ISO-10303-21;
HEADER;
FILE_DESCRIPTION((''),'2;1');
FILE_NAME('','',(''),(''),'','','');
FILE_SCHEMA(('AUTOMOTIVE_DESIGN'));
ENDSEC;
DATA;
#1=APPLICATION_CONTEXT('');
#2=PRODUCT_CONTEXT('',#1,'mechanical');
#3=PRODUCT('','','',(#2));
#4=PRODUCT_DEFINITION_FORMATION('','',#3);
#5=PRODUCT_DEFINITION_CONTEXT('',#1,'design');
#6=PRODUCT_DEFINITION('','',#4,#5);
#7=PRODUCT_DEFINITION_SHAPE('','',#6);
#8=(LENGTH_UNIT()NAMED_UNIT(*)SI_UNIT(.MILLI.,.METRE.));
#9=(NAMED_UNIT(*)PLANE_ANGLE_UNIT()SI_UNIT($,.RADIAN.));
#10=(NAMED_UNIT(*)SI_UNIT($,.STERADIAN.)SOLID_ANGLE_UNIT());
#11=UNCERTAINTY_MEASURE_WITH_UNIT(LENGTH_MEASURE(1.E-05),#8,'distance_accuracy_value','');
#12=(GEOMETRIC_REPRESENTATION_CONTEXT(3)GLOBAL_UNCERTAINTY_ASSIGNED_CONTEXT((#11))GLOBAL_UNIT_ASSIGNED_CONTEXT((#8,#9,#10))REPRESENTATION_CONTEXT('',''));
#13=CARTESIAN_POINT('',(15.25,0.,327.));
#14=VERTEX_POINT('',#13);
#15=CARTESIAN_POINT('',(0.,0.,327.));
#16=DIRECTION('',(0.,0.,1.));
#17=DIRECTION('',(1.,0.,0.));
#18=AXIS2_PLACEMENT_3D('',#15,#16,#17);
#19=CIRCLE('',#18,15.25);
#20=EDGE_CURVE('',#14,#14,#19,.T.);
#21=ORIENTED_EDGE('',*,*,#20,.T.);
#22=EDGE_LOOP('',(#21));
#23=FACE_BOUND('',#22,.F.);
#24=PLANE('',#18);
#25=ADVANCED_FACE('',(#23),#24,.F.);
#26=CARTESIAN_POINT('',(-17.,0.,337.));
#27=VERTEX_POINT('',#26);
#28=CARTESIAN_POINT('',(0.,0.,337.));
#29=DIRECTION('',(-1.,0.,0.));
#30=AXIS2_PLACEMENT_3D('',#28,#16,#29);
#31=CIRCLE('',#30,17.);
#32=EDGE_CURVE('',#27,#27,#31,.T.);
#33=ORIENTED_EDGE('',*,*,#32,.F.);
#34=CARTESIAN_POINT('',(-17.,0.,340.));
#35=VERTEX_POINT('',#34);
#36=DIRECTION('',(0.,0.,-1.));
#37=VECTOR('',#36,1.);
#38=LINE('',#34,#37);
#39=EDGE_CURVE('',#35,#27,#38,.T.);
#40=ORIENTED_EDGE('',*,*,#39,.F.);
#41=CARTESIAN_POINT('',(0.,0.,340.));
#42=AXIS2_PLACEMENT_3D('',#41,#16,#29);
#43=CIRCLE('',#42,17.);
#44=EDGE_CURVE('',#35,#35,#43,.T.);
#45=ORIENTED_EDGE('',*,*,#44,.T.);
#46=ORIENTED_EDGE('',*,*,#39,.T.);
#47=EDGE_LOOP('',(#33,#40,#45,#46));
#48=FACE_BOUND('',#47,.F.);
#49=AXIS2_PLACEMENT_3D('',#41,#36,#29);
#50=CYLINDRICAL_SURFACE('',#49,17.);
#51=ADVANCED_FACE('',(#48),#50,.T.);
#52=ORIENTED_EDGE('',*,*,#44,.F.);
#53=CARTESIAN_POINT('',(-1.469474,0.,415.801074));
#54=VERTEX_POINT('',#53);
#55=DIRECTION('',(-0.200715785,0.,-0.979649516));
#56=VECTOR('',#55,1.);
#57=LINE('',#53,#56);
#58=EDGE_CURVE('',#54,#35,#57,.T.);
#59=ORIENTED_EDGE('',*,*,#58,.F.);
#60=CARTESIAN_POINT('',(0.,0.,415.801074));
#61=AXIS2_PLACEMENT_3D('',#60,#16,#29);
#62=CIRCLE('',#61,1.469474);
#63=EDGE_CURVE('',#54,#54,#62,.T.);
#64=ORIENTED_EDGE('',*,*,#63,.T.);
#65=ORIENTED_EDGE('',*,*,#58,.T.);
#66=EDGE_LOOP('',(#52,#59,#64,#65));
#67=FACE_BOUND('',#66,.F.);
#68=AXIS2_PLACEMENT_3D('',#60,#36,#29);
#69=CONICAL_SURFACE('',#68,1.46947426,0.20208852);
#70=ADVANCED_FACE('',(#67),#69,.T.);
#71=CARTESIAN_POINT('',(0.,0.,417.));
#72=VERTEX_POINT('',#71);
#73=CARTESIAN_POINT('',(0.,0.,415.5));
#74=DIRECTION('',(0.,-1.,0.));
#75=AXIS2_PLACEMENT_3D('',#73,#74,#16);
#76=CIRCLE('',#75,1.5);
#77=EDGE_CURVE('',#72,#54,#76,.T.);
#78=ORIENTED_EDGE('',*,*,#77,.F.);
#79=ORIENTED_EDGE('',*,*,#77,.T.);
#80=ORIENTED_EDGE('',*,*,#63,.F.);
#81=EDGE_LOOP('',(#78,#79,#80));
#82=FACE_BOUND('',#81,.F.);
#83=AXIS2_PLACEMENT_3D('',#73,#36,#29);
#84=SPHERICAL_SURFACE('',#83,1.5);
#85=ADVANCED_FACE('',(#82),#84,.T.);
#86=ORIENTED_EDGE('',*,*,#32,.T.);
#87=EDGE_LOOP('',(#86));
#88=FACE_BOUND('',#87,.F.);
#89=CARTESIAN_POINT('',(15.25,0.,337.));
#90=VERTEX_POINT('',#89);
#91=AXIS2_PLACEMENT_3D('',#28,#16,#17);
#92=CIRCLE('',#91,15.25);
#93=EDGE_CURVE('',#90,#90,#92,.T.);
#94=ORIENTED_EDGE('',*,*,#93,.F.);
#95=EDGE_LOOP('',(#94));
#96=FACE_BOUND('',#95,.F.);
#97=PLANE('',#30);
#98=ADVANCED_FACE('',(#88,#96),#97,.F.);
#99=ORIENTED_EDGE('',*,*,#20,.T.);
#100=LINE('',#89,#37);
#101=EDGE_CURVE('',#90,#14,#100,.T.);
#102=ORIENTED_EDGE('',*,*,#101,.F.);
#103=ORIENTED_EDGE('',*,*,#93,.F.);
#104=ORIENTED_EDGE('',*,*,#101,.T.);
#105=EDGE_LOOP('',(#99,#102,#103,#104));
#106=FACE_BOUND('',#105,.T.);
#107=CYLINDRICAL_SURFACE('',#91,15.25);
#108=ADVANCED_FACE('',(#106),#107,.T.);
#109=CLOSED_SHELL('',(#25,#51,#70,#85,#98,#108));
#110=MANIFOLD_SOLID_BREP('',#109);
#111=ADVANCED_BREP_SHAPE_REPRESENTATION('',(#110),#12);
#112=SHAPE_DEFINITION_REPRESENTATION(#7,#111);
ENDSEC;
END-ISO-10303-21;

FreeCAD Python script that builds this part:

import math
import FreeCAD as App
import Part
import Sketcher
from FreeCAD import Vector

doc = App.newDocument("Part")
body = doc.addObject("PartDesign::Body", "Body")

# Sketch on XY plane
sketch1 = doc.addObject("Sketcher::SketchObject", "Sketch")
body.addObject(sketch1)
sketch1.AttachmentSupport = (doc.XY_Plane, [""])
sketch1.MapMode = "FlatFace"
sketch1.AttachmentOffset = App.Placement(Vector(0, 0, 337), App.Rotation())
sketch1.addGeometry(Part.Circle(Vector(0, 0, 0), Vector(0, 0, 1), 15), False)
sketch1.addConstraint([
    Sketcher.Constraint("Coincident", 0, 3, -1, 1),
    Sketcher.Constraint("Diameter", 0, 30.5),
])
pad1 = doc.addObject("PartDesign::Pad", "Pad")
body.addObject(pad1)
pad1.Profile = sketch1
pad1.Length = 10
pad1.Reversed = True

# Sketch on XZ plane
sketch2 = doc.addObject("Sketcher::SketchObject", "Sketch001")
body.addObject(sketch2)
sketch2.AttachmentSupport = (doc.XZ_Plane, [""])
sketch2.MapMode = "FlatFace"
sketch2.addGeometry([
    Part.ArcOfCircle(Part.Circle(Vector(0, 415.5, 0), Vector(0, 0, 1), 1.5), math.radians(90), math.radians(168)),  # 0
    Part.LineSegment(Vector(-1.5, 415.8, 0), Vector(-17, 340, 0)),  # 1
    Part.LineSegment(Vector(-17, 340, 0), Vector(-17, 337, 0)),  # 2
    Part.LineSegment(Vector(-17, 337, 0), Vector(0, 337, 0)),  # 3
    Part.LineSegment(Vector(0, 337, 0), Vector(0, 417, 0)),  # 4
], False)
sketch2.addConstraint([
    Sketcher.Constraint("Tangent", 0, 2, 1, 1),
    Sketcher.Constraint("Coincident", 1, 2, 2, 1),
    Sketcher.Constraint("Coincident", 2, 2, 3, 1),
    Sketcher.Constraint("Coincident", 3, 2, 4, 1),
    Sketcher.Constraint("Coincident", 4, 2, 0, 1),
    Sketcher.Constraint("Vertical", 2),
    Sketcher.Constraint("Horizontal", 3),
    Sketcher.Constraint("Vertical", 4),
    Sketcher.Constraint("PointOnObject", 0, 3, -2),
    Sketcher.Constraint("PointOnObject", 3, 2, -2),
    Sketcher.Constraint("Radius", 0, 1.5),
    Sketcher.Constraint("DistanceX", 3, 1, 3, 2, 17.0),
    Sketcher.Constraint("DistanceY", 2, 2, 2, 1, 3.0),
    Sketcher.Constraint("DistanceY", 4, 1, 4, 2, 80.0),
    Sketcher.Constraint("DistanceY", -1, 1, 1, 2, 340.0),
])
revolution = doc.addObject("PartDesign::Revolution", "Revolution")
body.addObject(revolution)
revolution.Profile = sketch2
revolution.ReferenceAxis = (sketch2, ["V_Axis"])
revolution.Angle = 360

doc.recompute()
